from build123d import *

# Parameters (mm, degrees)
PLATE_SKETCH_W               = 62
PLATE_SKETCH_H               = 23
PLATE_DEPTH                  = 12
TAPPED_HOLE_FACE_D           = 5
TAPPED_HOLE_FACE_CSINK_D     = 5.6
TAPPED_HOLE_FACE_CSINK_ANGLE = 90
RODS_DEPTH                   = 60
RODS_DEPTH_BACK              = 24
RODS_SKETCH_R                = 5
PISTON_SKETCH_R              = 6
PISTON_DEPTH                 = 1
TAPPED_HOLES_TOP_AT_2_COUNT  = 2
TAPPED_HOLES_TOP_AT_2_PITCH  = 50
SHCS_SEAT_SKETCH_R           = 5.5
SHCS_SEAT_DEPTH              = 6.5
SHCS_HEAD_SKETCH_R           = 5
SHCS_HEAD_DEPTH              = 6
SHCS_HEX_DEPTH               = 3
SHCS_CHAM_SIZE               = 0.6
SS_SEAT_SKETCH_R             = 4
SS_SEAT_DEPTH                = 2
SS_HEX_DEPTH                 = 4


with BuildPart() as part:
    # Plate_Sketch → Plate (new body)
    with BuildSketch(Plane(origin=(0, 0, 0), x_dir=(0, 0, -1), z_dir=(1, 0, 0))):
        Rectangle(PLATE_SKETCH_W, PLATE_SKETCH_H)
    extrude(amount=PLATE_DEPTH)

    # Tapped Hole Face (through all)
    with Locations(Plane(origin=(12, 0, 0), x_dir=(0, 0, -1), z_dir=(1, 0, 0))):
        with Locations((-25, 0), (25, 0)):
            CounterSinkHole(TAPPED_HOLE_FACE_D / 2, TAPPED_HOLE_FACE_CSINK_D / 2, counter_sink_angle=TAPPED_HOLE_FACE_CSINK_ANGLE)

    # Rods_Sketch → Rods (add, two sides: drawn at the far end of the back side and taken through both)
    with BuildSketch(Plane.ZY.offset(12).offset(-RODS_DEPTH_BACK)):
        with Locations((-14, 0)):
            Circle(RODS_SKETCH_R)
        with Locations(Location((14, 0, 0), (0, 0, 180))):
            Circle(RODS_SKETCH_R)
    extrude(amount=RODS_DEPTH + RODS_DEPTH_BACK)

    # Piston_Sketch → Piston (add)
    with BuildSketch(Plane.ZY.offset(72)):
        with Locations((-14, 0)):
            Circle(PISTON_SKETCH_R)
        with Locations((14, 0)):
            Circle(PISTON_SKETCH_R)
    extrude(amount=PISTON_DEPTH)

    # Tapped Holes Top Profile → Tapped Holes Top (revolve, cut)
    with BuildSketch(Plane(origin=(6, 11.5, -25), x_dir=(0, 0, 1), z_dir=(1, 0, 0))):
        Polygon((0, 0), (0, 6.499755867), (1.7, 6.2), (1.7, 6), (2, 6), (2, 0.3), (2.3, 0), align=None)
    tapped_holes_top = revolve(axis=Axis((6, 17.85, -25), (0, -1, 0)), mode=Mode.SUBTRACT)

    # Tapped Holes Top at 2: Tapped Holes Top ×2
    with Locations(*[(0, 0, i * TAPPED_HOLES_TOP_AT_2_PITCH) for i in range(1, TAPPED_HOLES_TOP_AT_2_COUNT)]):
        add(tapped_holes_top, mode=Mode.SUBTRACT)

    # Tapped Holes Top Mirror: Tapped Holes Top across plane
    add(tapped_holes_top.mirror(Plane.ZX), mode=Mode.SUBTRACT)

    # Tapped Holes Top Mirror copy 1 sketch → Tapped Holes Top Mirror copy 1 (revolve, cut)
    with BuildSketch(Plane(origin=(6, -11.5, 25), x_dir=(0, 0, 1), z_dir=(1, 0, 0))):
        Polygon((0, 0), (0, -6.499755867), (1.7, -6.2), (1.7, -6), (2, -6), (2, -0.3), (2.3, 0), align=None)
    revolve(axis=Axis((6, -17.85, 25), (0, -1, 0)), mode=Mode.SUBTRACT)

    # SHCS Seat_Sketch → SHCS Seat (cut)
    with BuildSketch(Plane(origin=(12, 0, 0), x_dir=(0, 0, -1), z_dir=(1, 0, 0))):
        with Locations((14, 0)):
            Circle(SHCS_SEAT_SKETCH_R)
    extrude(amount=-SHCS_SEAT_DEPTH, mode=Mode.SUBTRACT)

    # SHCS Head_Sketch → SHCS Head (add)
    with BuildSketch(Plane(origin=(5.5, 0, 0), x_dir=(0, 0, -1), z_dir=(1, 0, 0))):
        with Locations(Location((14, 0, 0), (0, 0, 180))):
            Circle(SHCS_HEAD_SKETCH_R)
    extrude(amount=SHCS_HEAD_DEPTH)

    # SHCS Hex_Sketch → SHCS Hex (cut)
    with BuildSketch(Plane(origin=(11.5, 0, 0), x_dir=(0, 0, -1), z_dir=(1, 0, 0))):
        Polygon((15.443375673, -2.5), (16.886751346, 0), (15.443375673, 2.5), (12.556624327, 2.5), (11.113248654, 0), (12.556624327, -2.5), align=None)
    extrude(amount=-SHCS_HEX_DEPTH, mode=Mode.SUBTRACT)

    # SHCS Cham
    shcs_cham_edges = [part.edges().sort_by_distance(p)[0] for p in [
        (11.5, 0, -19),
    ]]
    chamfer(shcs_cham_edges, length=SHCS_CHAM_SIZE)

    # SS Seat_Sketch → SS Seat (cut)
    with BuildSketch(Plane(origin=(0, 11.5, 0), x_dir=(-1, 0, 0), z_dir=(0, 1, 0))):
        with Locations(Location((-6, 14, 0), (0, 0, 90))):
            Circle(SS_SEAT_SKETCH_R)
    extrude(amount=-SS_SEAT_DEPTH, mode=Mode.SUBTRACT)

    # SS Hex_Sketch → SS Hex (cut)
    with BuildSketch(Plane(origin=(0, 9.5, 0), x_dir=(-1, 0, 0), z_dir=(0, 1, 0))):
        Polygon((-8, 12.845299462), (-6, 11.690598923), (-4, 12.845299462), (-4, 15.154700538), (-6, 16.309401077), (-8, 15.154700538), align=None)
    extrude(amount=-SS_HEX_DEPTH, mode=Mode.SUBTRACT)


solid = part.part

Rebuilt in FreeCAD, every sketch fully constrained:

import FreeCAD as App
import Part
import Sketcher

V = App.Vector
Q = App.Units.Quantity


def edges_at(feature, points):
    """Names of the edges that pass closest to the given points."""
    edges = feature.Shape.Edges
    near = lambda p: min(range(len(edges)), key=lambda i: edges[i].distToShape(Part.Vertex(*p))[0])
    return sorted({f"Edge{near(p) + 1}" for p in points})

doc = App.newDocument("Part")
body = doc.addObject("PartDesign::Body", "Body")

# Sketch on YZ plane
sketch1 = body.newObject("Sketcher::SketchObject", "Sketch")
sketch1.AttachmentSupport = (doc.getObject("YZ_Plane"), [""])
sketch1.MapMode = "FlatFace"
sketch1.addGeometry([
    Part.LineSegment(V(12, 31, 0), V(-12, 31, 0)),
    Part.LineSegment(V(-12, 31, 0), V(-12, -31, 0)),
    Part.LineSegment(V(-12, -31, 0), V(12, -31, 0)),
    Part.LineSegment(V(12, -31, 0), V(12, 31, 0)),
], False)
sketch1.addConstraint([
    Sketcher.Constraint("Coincident", 0, 2, 1, 1),
    Sketcher.Constraint("Coincident", 1, 2, 2, 1),
    Sketcher.Constraint("Coincident", 2, 2, 3, 1),
    Sketcher.Constraint("Coincident", 3, 2, 0, 1),
    Sketcher.Constraint("Horizontal", 0),
    Sketcher.Constraint("Vertical", 1),
    Sketcher.Constraint("Horizontal", 2),
    Sketcher.Constraint("Vertical", 3),
    Sketcher.Constraint("Symmetric", 0, 2, 2, 2, -1, 1),
    Sketcher.Constraint("DistanceX", 0, 2, 0, 1, 23.0),
    Sketcher.Constraint("DistanceY", 1, 2, 1, 1, 62.0),
])
pad1 = body.newObject("PartDesign::Pad", "Pad")
pad1.Profile = sketch1
pad1.Length = 12

# Sketch on YZ plane
sketch2 = body.newObject("Sketcher::SketchObject", "Sketch001")
sketch2.AttachmentSupport = (doc.getObject("YZ_Plane"), [""])
sketch2.MapMode = "FlatFace"
sketch2.AttachmentOffset = App.Placement(V(0, 0, 12), App.Rotation())
sketch2.addGeometry([
    Part.Circle(V(0, 25, 0), V(0, 0, 1), 2.5),
    Part.Circle(V(0, -25, 0), V(0, 0, 1), 2.5),
], False)
sketch2.addConstraint([
    Sketcher.Constraint("Equal", 0, 1),
    Sketcher.Constraint("Symmetric", 0, 3, 1, 3, -1, 1),
    Sketcher.Constraint("PointOnObject", 0, 3, -2),
    Sketcher.Constraint("Diameter", 0, 5.0),
    Sketcher.Constraint("DistanceY", -1, 1, 0, 3, 25.0),
])
doc.recompute()
hole = body.newObject("PartDesign::Hole", "Hole")
hole.Profile = sketch2
hole.ThreadType = "None"
hole.Diameter = 5
hole.DepthType = "ThroughAll"
hole.HoleCutType = "Countersink"
hole.HoleCutDiameter = 5.6
hole.HoleCutCountersinkAngle = 90

# Sketch on YZ plane
sketch3 = body.newObject("Sketcher::SketchObject", "Sketch002")
sketch3.AttachmentSupport = (doc.getObject("YZ_Plane"), [""])
sketch3.MapMode = "FlatFace"
sketch3.AttachmentOffset = App.Placement(V(0, 0, -12), App.Rotation())
sketch3.addGeometry([
    Part.Circle(V(0, -14, 0), V(0, 0, 1), 5),
    Part.Circle(V(0, 14, 0), V(0, 0, 1), 5),
], False)
sketch3.addConstraint([
    Sketcher.Constraint("Equal", 0, 1),
    Sketcher.Constraint("Symmetric", 0, 3, 1, 3, -1, 1),
    Sketcher.Constraint("PointOnObject", 0, 3, -2),
    Sketcher.Constraint("Diameter", 0, 10.0),
    Sketcher.Constraint("DistanceY", 0, 3, -1, 1, 14.0),
])
pad2 = body.newObject("PartDesign::Pad", "Pad001")
pad2.Profile = sketch3
pad2.Type = "TwoLengths"
pad2.Length = 60
pad2.Length2 = 24
pad2.Reversed = True

# Sketch on YZ plane
sketch4 = body.newObject("Sketcher::SketchObject", "Sketch003")
sketch4.AttachmentSupport = (doc.getObject("YZ_Plane"), [""])
sketch4.MapMode = "FlatFace"
sketch4.AttachmentOffset = App.Placement(V(0, 0, -72), App.Rotation())
sketch4.addGeometry([
    Part.Circle(V(0, -14, 0), V(0, 0, 1), 6),
    Part.Circle(V(0, 14, 0), V(0, 0, 1), 6),
], False)
sketch4.addConstraint([
    Sketcher.Constraint("Equal", 0, 1),
    Sketcher.Constraint("Symmetric", 0, 3, 1, 3, -1, 1),
    Sketcher.Constraint("PointOnObject", 0, 3, -2),
    Sketcher.Constraint("Diameter", 0, 12.0),
    Sketcher.Constraint("DistanceY", 0, 3, -1, 1, 14.0),
])
pad3 = body.newObject("PartDesign::Pad", "Pad002")
pad3.Profile = sketch4
pad3.Length = 1
pad3.Reversed = True

# Sketch on YZ plane
sketch5 = body.newObject("Sketcher::SketchObject", "Sketch004")
sketch5.AttachmentSupport = (doc.getObject("YZ_Plane"), [""])
sketch5.MapMode = "FlatFace"
sketch5.AttachmentOffset = App.Placement(V(0, 0, 6), App.Rotation())
sketch5.addGeometry([
    Part.LineSegment(V(5, -25, 0), V(11.5, -25, 0)),  # 0
    Part.LineSegment(V(11.5, -25, 0), V(11.5, -22.7, 0)),  # 1
    Part.LineSegment(V(11.5, -22.7, 0), V(11.2, -23, 0)),  # 2
    Part.LineSegment(V(11.2, -23, 0), V(5.5, -23, 0)),  # 3
    Part.LineSegment(V(5.5, -23, 0), V(5.5, -23.3, 0)),  # 4
    Part.LineSegment(V(5.5, -23.3, 0), V(5.3, -23.3, 0)),  # 5
    Part.LineSegment(V(5.3, -23.3, 0), V(5, -25, 0)),  # 6
], False)
sketch5.addGeometry(Part.LineSegment(V(11.5, -25, 0), V(5, -25, 0)), True)  # axis
sketch5.addConstraint([
    Sketcher.Constraint("Coincident", 0, 2, 1, 1),
    Sketcher.Constraint("Coincident", 1, 2, 2, 1),
    Sketcher.Constraint("Coincident", 2, 2, 3, 1),
    Sketcher.Constraint("Coincident", 3, 2, 4, 1),
    Sketcher.Constraint("Coincident", 4, 2, 5, 1),
    Sketcher.Constraint("Coincident", 5, 2, 6, 1),
    Sketcher.Constraint("Coincident", 6, 2, 0, 1),
    Sketcher.Constraint("Horizontal", 0),
    Sketcher.Constraint("Vertical", 1),
    Sketcher.Constraint("Horizontal", 3),
    Sketcher.Constraint("Vertical", 4),
    Sketcher.Constraint("Horizontal", 5),
    Sketcher.Constraint("Horizontal", 7),
    Sketcher.Constraint("Coincident", 7, 1, 0, 2),
    Sketcher.Constraint("Equal", 0, 7),
    Sketcher.Constraint("Angle", 2, Q("-135 deg")),
    Sketcher.Constraint("Angle", 6, Q("-100 deg")),
    Sketcher.Constraint("DistanceX", 3, 2, 3, 1, 5.7),
    Sketcher.Constraint("DistanceX", 5, 2, 5, 1, 0.2),
    Sketcher.Constraint("DistanceY", 1, 1, 1, 2, 2.3),
    Sketcher.Constraint("DistanceY", 4, 2, 4, 1, 0.3),
    Sketcher.Constraint("DistanceY", 0, 2, -1, 1, 25.0),
    Sketcher.Constraint("DistanceY", 2, 2, -1, 1, 23.0),
    Sketcher.Constraint("DistanceX", -1, 1, 0, 2, 11.5),
])
groove = body.newObject("PartDesign::Groove", "Groove")
groove.Profile = sketch5
groove.ReferenceAxis = (sketch5, ["Axis0"])
groove.Angle = 360
doc.recompute()

linearpattern = body.newObject("PartDesign::LinearPattern", "LinearPattern")
linearpattern.Originals = [groove]
linearpattern.Direction = (doc.getObject("Z_Axis"), [""])
linearpattern.Mode = "offset"
linearpattern.Offset = 50
linearpattern.Occurrences = 2
body.Tip = linearpattern
doc.recompute()

mirrored = body.newObject("PartDesign::Mirrored", "Mirrored")
mirrored.Originals = [groove]
mirrored.MirrorPlane = (doc.getObject("XZ_Plane"), [""])
body.Tip = mirrored

# Sketch on YZ plane
sketch6 = body.newObject("Sketcher::SketchObject", "Sketch005")
sketch6.AttachmentSupport = (doc.getObject("YZ_Plane"), [""])
sketch6.MapMode = "FlatFace"
sketch6.AttachmentOffset = App.Placement(V(0, 0, 6), App.Rotation())
sketch6.addGeometry([
    Part.LineSegment(V(-11.5, 25, 0), V(-5, 25, 0)),  # 0
    Part.LineSegment(V(-5, 25, 0), V(-5.3, 26.7, 0)),  # 1
    Part.LineSegment(V(-5.3, 26.7, 0), V(-5.5, 26.7, 0)),  # 2
    Part.LineSegment(V(-5.5, 26.7, 0), V(-5.5, 27, 0)),  # 3
    Part.LineSegment(V(-5.5, 27, 0), V(-11.2, 27, 0)),  # 4
    Part.LineSegment(V(-11.2, 27, 0), V(-11.5, 27.3, 0)),  # 5
    Part.LineSegment(V(-11.5, 27.3, 0), V(-11.5, 25, 0)),  # 6
], False)
sketch6.addGeometry(Part.LineSegment(V(-5, 25, 0), V(-11.5, 25, 0)), True)  # axis
sketch6.addConstraint([
    Sketcher.Constraint("Coincident", 0, 2, 1, 1),
    Sketcher.Constraint("Coincident", 1, 2, 2, 1),
    Sketcher.Constraint("Coincident", 2, 2, 3, 1),
    Sketcher.Constraint("Coincident", 3, 2, 4, 1),
    Sketcher.Constraint("Coincident", 4, 2, 5, 1),
    Sketcher.Constraint("Coincident", 5, 2, 6, 1),
    Sketcher.Constraint("Coincident", 6, 2, 0, 1),
    Sketcher.Constraint("Horizontal", 0),
    Sketcher.Constraint("Horizontal", 2),
    Sketcher.Constraint("Vertical", 3),
    Sketcher.Constraint("Horizontal", 4),
    Sketcher.Constraint("Vertical", 6),
    Sketcher.Constraint("Horizontal", 7),
    Sketcher.Constraint("Coincident", 7, 1, 0, 2),
    Sketcher.Constraint("Vertical", 5, 2, 7, 2),
    Sketcher.Constraint("Angle", 1, Q("100 deg")),
    Sketcher.Constraint("Angle", 5, Q("135 deg")),
    Sketcher.Constraint("DistanceX", 2, 2, 2, 1, 0.2),
    Sketcher.Constraint("DistanceX", 4, 2, 4, 1, 5.7),
    Sketcher.Constraint("DistanceY", 3, 1, 3, 2, 0.3),
    Sketcher.Constraint("DistanceY", 6, 2, 6, 1, 2.3),
    Sketcher.Constraint("DistanceY", -1, 1, 0, 2, 25.0),
    Sketcher.Constraint("DistanceY", -1, 1, 3, 2, 27.0),
    Sketcher.Constraint("DistanceX", 1, 2, -1, 1, 5.3),
])
groove2 = body.newObject("PartDesign::Groove", "Groove001")
groove2.Profile = sketch6
groove2.ReferenceAxis = (sketch6, ["Axis0"])
groove2.Angle = 360

# Sketch on YZ plane
sketch7 = body.newObject("Sketcher::SketchObject", "Sketch006")
sketch7.AttachmentSupport = (doc.getObject("YZ_Plane"), [""])
sketch7.MapMode = "FlatFace"
sketch7.AttachmentOffset = App.Placement(V(0, 0, 12), App.Rotation())
sketch7.addGeometry(Part.Circle(V(0, -14, 0), V(0, 0, 1), 6), False)
sketch7.addConstraint([
    Sketcher.Constraint("PointOnObject", 0, 3, -2),
    Sketcher.Constraint("Diameter", 0, 11.0),
    Sketcher.Constraint("DistanceY", 0, 3, -1, 1, 14.0),
])
pocket1 = body.newObject("PartDesign::Pocket", "Pocket")
pocket1.Profile = sketch7
pocket1.Length = 6.5

# Sketch on YZ plane
sketch8 = body.newObject("Sketcher::SketchObject", "Sketch007")
sketch8.AttachmentSupport = (doc.getObject("YZ_Plane"), [""])
sketch8.MapMode = "FlatFace"
sketch8.AttachmentOffset = App.Placement(V(0, 0, 5.5), App.Rotation())
sketch8.addGeometry(Part.Circle(V(0, -14, 0), V(0, 0, 1), 5), False)
sketch8.addConstraint([
    Sketcher.Constraint("PointOnObject", 0, 3, -2),
    Sketcher.Constraint("Diameter", 0, 10.0),
    Sketcher.Constraint("DistanceY", 0, 3, -1, 1, 14.0),
])
pad4 = body.newObject("PartDesign::Pad", "Pad003")
pad4.Profile = sketch8
pad4.Length = 6

# Sketch on YZ plane
sketch9 = body.newObject("Sketcher::SketchObject", "Sketch008")
sketch9.AttachmentSupport = (doc.getObject("YZ_Plane"), [""])
sketch9.MapMode = "FlatFace"
sketch9.AttachmentOffset = App.Placement(V(0, 0, 11.5), App.Rotation())
sketch9.addGeometry([
    Part.LineSegment(V(-2.5, -15.4, 0), V(0, -16.9, 0)),  # 0
    Part.LineSegment(V(0, -16.9, 0), V(2.5, -15.4, 0)),  # 1
    Part.LineSegment(V(2.5, -15.4, 0), V(2.5, -12.6, 0)),  # 2
    Part.LineSegment(V(2.5, -12.6, 0), V(0, -11.1, 0)),  # 3
    Part.LineSegment(V(0, -11.1, 0), V(-2.5, -12.6, 0)),  # 4
    Part.LineSegment(V(-2.5, -12.6, 0), V(-2.5, -15.4, 0)),  # 5
], False)
sketch9.addConstraint([
    Sketcher.Constraint("Coincident", 0, 2, 1, 1),
    Sketcher.Constraint("Coincident", 1, 2, 2, 1),
    Sketcher.Constraint("Coincident", 2, 2, 3, 1),
    Sketcher.Constraint("Coincident", 3, 2, 4, 1),
    Sketcher.Constraint("Coincident", 4, 2, 5, 1),
    Sketcher.Constraint("Coincident", 5, 2, 0, 1),
    Sketcher.Constraint("Vertical", 2),
    Sketcher.Constraint("Vertical", 5),
    Sketcher.Constraint("Symmetric", 2, 2, 4, 2, -2),
    Sketcher.Constraint("PointOnObject", 0, 2, -2),
    Sketcher.Constraint("PointOnObject", 3, 2, -2),
    Sketcher.Constraint("Parallel", 0, 3),
    Sketcher.Constraint("Parallel", 1, 4),
    Sketcher.Constraint("Angle", 0, Q("-30 deg")),
    Sketcher.Constraint("DistanceX", 4, 2, 2, 2, 5.0),
    Sketcher.Constraint("DistanceY", 2, 1, 2, 2, 2.886751),
    Sketcher.Constraint("DistanceY", 0, 2, -1, 1, 16.886751),
])
pocket2 = body.newObject("PartDesign::Pocket", "Pocket001")
pocket2.Profile = sketch9
pocket2.Length = 3
doc.recompute()

chamfer = body.newObject("PartDesign::Chamfer", "Chamfer")
chamfer.Base = (pocket2, edges_at(pocket2, [(11.5, 0, -19)]))
chamfer.Size = 0.6

# Sketch on XZ plane
sketch10 = body.newObject("Sketcher::SketchObject", "Sketch009")
sketch10.AttachmentSupport = (doc.getObject("XZ_Plane"), [""])
sketch10.MapMode = "FlatFace"
sketch10.AttachmentOffset = App.Placement(V(0, 0, -11.5), App.Rotation())
sketch10.addGeometry(Part.Circle(V(6, 14, 0), V(0, 0, 1), 4), False)
sketch10.addConstraint([
    Sketcher.Constraint("Diameter", 0, 8.0),
    Sketcher.Constraint("DistanceX", -1, 1, 0, 3, 6.0),
    Sketcher.Constraint("DistanceY", -1, 1, 0, 3, 14.0),
])
pocket3 = body.newObject("PartDesign::Pocket", "Pocket002")
pocket3.Profile = sketch10
pocket3.Length = 2
pocket3.Reversed = True

# Sketch on XZ plane
sketch11 = body.newObject("Sketcher::SketchObject", "Sketch010")
sketch11.AttachmentSupport = (doc.getObject("XZ_Plane"), [""])
sketch11.MapMode = "FlatFace"
sketch11.AttachmentOffset = App.Placement(V(0, 0, -9.5), App.Rotation())
sketch11.addGeometry([
    Part.LineSegment(V(8, 12.8, 0), V(6, 11.7, 0)),  # 0
    Part.LineSegment(V(6, 11.7, 0), V(4, 12.8, 0)),  # 1
    Part.LineSegment(V(4, 12.8, 0), V(4, 15.2, 0)),  # 2
    Part.LineSegment(V(4, 15.2, 0), V(6, 16.3, 0)),  # 3
    Part.LineSegment(V(6, 16.3, 0), V(8, 15.2, 0)),  # 4
    Part.LineSegment(V(8, 15.2, 0), V(8, 12.8, 0)),  # 5
], False)
sketch11.addConstraint([
    Sketcher.Constraint("Coincident", 0, 2, 1, 1),
    Sketcher.Constraint("Coincident", 1, 2, 2, 1),
    Sketcher.Constraint("Coincident", 2, 2, 3, 1),
    Sketcher.Constraint("Coincident", 3, 2, 4, 1),
    Sketcher.Constraint("Coincident", 4, 2, 5, 1),
    Sketcher.Constraint("Coincident", 5, 2, 0, 1),
    Sketcher.Constraint("Vertical", 2),
    Sketcher.Constraint("Vertical", 5),
    Sketcher.Constraint("Parallel", 0, 3),
    Sketcher.Constraint("Parallel", 1, 4),
    Sketcher.Constraint("Horizontal", 2, 2, 4, 2),
    Sketcher.Constraint("Horizontal", 1, 2, 5, 2),
    Sketcher.Constraint("Vertical", 0, 2, 3, 2),
    Sketcher.Constraint("Angle", 0, Q("-150 deg")),
    Sketcher.Constraint("DistanceX", -1, 1, 0, 2, 6.0),
    Sketcher.Constraint("DistanceX", -1, 1, 1, 2, 4.0),
    Sketcher.Constraint("DistanceY", 2, 1, 2, 2, 2.309401),
    Sketcher.Constraint("DistanceY", -1, 1, 0, 2, 11.690599),
])
pocket4 = body.newObject("PartDesign::Pocket", "Pocket003")
pocket4.Profile = sketch11
pocket4.Length = 4
pocket4.Reversed = True

doc.recompute()
